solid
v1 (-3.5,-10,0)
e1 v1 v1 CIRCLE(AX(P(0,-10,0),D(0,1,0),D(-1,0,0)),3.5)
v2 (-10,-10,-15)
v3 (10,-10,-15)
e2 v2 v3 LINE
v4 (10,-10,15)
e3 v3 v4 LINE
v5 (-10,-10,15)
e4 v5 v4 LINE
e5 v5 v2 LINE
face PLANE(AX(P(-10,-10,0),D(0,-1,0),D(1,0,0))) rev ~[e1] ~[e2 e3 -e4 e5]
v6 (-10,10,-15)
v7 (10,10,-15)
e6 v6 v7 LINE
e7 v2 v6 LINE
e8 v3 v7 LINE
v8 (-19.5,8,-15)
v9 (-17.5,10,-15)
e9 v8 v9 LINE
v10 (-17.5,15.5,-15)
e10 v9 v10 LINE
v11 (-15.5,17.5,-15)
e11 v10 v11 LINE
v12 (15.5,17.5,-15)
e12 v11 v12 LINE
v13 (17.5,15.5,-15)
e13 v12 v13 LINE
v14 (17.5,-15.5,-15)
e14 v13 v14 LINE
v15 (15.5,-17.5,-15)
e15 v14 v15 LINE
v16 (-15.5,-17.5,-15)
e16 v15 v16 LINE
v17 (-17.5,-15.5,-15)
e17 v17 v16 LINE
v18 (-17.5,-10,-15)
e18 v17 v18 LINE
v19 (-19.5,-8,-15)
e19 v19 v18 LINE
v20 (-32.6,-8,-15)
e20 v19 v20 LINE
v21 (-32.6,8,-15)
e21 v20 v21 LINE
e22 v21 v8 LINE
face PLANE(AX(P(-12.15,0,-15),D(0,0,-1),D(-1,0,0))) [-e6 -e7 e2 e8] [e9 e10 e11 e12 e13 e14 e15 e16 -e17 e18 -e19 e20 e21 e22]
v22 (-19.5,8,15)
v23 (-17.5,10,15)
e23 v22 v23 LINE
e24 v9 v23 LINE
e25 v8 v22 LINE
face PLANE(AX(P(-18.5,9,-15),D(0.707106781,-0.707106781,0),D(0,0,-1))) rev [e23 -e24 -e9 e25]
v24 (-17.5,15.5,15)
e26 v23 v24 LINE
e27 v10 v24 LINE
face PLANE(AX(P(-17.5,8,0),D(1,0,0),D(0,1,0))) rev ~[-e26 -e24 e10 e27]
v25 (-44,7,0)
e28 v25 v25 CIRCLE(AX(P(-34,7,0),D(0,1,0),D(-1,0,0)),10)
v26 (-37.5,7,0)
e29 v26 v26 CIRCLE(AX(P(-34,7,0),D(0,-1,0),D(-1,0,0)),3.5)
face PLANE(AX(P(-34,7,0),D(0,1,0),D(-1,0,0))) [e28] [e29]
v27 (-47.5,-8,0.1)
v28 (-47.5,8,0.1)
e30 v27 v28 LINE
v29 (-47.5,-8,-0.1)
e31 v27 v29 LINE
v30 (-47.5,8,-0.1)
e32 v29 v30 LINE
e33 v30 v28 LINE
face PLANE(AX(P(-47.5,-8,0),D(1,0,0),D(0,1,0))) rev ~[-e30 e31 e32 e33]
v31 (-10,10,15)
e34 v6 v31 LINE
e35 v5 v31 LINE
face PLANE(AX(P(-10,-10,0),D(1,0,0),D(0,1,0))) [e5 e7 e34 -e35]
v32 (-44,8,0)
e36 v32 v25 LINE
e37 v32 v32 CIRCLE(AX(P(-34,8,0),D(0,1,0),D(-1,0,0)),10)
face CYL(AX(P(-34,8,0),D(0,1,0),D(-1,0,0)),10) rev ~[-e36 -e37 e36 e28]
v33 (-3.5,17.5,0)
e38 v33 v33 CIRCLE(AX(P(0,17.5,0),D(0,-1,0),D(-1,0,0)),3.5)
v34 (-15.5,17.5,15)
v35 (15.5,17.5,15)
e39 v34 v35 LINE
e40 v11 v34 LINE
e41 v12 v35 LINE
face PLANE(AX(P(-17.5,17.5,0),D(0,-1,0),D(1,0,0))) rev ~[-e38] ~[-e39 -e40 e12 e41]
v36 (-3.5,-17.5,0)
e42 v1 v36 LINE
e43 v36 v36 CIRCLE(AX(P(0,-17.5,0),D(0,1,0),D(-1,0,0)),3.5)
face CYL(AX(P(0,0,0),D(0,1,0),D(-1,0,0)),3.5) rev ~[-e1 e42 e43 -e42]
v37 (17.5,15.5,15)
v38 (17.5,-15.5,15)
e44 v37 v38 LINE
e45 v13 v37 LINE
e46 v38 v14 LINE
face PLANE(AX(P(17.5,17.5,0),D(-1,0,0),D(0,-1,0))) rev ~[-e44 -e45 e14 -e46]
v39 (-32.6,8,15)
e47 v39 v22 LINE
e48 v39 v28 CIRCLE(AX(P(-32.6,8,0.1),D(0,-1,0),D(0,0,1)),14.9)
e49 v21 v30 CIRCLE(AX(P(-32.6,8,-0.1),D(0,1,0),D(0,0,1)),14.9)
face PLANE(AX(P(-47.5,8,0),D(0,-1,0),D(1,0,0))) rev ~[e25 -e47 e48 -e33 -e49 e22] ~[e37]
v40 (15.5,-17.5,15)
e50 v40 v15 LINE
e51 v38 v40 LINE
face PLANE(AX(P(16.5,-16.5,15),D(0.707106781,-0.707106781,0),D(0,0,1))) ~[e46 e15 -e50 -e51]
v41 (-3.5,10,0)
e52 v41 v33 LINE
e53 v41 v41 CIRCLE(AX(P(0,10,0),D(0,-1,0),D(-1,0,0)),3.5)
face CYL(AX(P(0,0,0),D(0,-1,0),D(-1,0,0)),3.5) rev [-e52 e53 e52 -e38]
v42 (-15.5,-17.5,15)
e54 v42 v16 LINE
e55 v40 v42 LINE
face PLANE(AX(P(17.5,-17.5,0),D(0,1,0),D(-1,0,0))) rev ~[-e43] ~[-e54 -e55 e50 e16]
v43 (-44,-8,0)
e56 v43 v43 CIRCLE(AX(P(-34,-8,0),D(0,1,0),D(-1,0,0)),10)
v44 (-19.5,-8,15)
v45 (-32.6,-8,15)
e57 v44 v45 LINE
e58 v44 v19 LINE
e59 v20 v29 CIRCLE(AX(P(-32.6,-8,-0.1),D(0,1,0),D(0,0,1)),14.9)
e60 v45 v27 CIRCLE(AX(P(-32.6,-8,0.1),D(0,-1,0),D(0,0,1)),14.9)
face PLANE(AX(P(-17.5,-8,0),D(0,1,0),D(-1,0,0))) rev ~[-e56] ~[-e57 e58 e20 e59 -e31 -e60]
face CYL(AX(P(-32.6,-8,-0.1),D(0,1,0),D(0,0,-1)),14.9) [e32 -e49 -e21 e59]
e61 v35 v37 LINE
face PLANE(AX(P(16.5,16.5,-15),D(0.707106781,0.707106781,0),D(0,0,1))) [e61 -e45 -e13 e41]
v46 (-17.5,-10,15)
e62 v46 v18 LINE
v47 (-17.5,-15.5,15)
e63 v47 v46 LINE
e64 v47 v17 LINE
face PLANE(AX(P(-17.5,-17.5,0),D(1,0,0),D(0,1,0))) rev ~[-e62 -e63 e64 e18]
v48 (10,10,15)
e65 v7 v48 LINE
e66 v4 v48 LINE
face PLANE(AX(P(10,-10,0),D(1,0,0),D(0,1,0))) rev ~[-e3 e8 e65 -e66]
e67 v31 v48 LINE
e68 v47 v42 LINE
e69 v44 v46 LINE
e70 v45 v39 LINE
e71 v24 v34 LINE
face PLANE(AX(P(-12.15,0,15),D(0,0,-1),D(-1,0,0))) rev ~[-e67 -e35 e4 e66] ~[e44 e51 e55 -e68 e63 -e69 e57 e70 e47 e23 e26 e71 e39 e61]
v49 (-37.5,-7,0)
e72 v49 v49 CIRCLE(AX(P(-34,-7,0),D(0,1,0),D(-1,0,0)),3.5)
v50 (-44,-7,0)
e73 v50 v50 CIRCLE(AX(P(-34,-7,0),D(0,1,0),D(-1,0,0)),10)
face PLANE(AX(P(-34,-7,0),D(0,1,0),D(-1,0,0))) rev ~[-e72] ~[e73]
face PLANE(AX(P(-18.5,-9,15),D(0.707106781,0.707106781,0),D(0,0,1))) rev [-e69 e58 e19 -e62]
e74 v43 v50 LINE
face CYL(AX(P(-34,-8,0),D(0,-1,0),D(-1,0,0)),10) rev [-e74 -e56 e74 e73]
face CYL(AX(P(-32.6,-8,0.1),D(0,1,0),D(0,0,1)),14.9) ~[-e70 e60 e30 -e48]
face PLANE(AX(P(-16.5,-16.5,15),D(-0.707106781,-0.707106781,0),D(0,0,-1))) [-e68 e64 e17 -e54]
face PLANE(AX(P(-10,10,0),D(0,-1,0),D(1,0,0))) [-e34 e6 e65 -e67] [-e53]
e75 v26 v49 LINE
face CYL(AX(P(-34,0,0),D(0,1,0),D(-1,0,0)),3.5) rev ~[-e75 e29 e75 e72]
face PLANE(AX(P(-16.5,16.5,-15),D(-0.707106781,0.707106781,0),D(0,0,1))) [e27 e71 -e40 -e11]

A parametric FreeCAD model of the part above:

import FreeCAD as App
import Part
import Sketcher
Q = App.Units.Quantity


def edges_at(feature, points):
    """Names of the edges that pass closest to the given points."""
    edges = feature.Shape.Edges
    near = lambda p: min(range(len(edges)), key=lambda i: edges[i].distToShape(Part.Vertex(*p))[0])
    return sorted({f"Edge{near(p) + 1}" for p in points})

doc = App.newDocument("Part")
body = doc.addObject("PartDesign::Body", "Body")

sketch1 = body.newObject("Sketcher::SketchObject", "Sketch")
sketch1.AttachmentSupport = (doc.getObject("XY_Plane"), [""])
sketch1.MapMode = "FlatFace"
sketch1.addGeometry(Part.LineSegment(App.Vector(18, -18, 0), App.Vector(18, 18, 0)), False)
sketch1.addGeometry(Part.LineSegment(App.Vector(18, 18, 0), App.Vector(-18, 18, 0)), False)
sketch1.addGeometry(Part.LineSegment(App.Vector(-18, 18, 0), App.Vector(-18, 8, 0)), False)
sketch1.addGeometry(Part.LineSegment(App.Vector(-18, 8, 0), App.Vector(-48, 8, 0)), False)
sketch1.addGeometry(Part.LineSegment(App.Vector(-48, 8, 0), App.Vector(-48, -8, 0)), False)
sketch1.addGeometry(Part.LineSegment(App.Vector(-48, -8, 0), App.Vector(-18, -8, 0)), False)
sketch1.addGeometry(Part.LineSegment(App.Vector(-18, -8, 0), App.Vector(-18, -18, 0)), False)
sketch1.addGeometry(Part.LineSegment(App.Vector(-18, -18, 0), App.Vector(18, -18, 0)), False)
sketch1.addGeometry(Part.LineSegment(App.Vector(-10, -10, 0), App.Vector(-10, 10, 0)), False)
sketch1.addGeometry(Part.LineSegment(App.Vector(-10, 10, 0), App.Vector(10, 10, 0)), False)
sketch1.addGeometry(Part.LineSegment(App.Vector(10, 10, 0), App.Vector(10, -10, 0)), False)
sketch1.addGeometry(Part.LineSegment(App.Vector(10, -10, 0), App.Vector(-10, -10, 0)), False)
sketch1.addConstraint(Sketcher.Constraint("Coincident", 0, 2, 1, 1))
sketch1.addConstraint(Sketcher.Constraint("Coincident", 1, 2, 2, 1))
sketch1.addConstraint(Sketcher.Constraint("Coincident", 2, 2, 3, 1))
sketch1.addConstraint(Sketcher.Constraint("Coincident", 3, 2, 4, 1))
sketch1.addConstraint(Sketcher.Constraint("Coincident", 4, 2, 5, 1))
sketch1.addConstraint(Sketcher.Constraint("Coincident", 5, 2, 6, 1))
sketch1.addConstraint(Sketcher.Constraint("Coincident", 6, 2, 7, 1))
sketch1.addConstraint(Sketcher.Constraint("Coincident", 7, 2, 0, 1))
sketch1.addConstraint(Sketcher.Constraint("Coincident", 8, 2, 9, 1))
sketch1.addConstraint(Sketcher.Constraint("Coincident", 9, 2, 10, 1))
sketch1.addConstraint(Sketcher.Constraint("Coincident", 10, 2, 11, 1))
sketch1.addConstraint(Sketcher.Constraint("Coincident", 11, 2, 8, 1))
sketch1.addConstraint(Sketcher.Constraint("Vertical", 0))
sketch1.addConstraint(Sketcher.Constraint("Horizontal", 1))
sketch1.addConstraint(Sketcher.Constraint("Vertical", 2))
sketch1.addConstraint(Sketcher.Constraint("Horizontal", 3))
sketch1.addConstraint(Sketcher.Constraint("Vertical", 4))
sketch1.addConstraint(Sketcher.Constraint("Horizontal", 5))
sketch1.addConstraint(Sketcher.Constraint("Vertical", 6))
sketch1.addConstraint(Sketcher.Constraint("Horizontal", 7))
sketch1.addConstraint(Sketcher.Constraint("Vertical", 8))
sketch1.addConstraint(Sketcher.Constraint("Horizontal", 9))
sketch1.addConstraint(Sketcher.Constraint("Vertical", 10))
sketch1.addConstraint(Sketcher.Constraint("Horizontal", 11))
sketch1.addConstraint(Sketcher.Constraint("Symmetric", 0, 2, 6, 2, -1, 1))
sketch1.addConstraint(Sketcher.Constraint("Symmetric", 8, 2, 10, 2, -1, 1))
sketch1.addConstraint(Sketcher.Constraint("Symmetric", 2, 2, 5, 2, -1))
sketch1.addConstraint(Sketcher.Constraint("Equal", 7, 0))
sketch1.addConstraint(Sketcher.Constraint("Equal", 11, 8))
sketch1.addConstraint(Sketcher.Constraint("DistanceX", 1, 2, 1, 1, Q("35 mm")))
sketch1.addConstraint(Sketcher.Constraint("DistanceX", 3, 2, 3, 1, Q("30 mm")))
sketch1.addConstraint(Sketcher.Constraint("DistanceX", 9, 1, 9, 2, Q("20 mm")))
sketch1.addConstraint(Sketcher.Constraint("DistanceY", 4, 2, 4, 1, Q("16 mm")))
pad1 = body.newObject("PartDesign::Pad", "Pad")
pad1.Profile = sketch1
pad1.Length = 30
pad1.Midplane = True

sketch2 = body.newObject("Sketcher::SketchObject", "Sketch001")
sketch2.AttachmentSupport = (doc.getObject("XZ_Plane"), [""])
sketch2.MapMode = "FlatFace"
sketch2.addGeometry(Part.Circle(App.Vector(-34, 0, 0), App.Vector(0, 0, 1), 3.5), False)
sketch2.addGeometry(Part.Circle(App.Vector(0, 0, 0), App.Vector(0, 0, 1), 3.5), False)
sketch2.addConstraint(Sketcher.Constraint("Coincident", 1, 3, -1, 1))
sketch2.addConstraint(Sketcher.Constraint("Equal", 0, 1))
sketch2.addConstraint(Sketcher.Constraint("PointOnObject", 0, 3, -1))
sketch2.addConstraint(Sketcher.Constraint("Diameter", 0, Q("7 mm")))
sketch2.addConstraint(Sketcher.Constraint("DistanceX", 0, 3, -1, 1, Q("34 mm")))
pocket1 = body.newObject("PartDesign::Pocket", "Pocket")
pocket1.Profile = sketch2
pocket1.Type = "ThroughAll"
pocket1.Midplane = True

sketch3 = body.newObject("Sketcher::SketchObject", "Sketch002")
sketch3.AttachmentSupport = (doc.getObject("XZ_Plane"), [""])
sketch3.MapMode = "FlatFace"
sketch3.AttachmentOffset = App.Placement(App.Vector(0, 0, -8), App.Rotation())
sketch3.addGeometry(Part.Circle(App.Vector(-34, 0, 0), App.Vector(0, 0, 1), 10), False)
sketch3.addConstraint(Sketcher.Constraint("PointOnObject", 0, 3, -1))
sketch3.addConstraint(Sketcher.Constraint("Diameter", 0, Q("20 mm")))
sketch3.addConstraint(Sketcher.Constraint("DistanceX", 0, 3, -1, 1, Q("34 mm")))
pocket2 = body.newObject("PartDesign::Pocket", "Pocket001")
pocket2.Profile = sketch3
pocket2.Length = 1
pocket2.Reversed = True

sketch4 = body.newObject("Sketcher::SketchObject", "Sketch003")
sketch4.AttachmentSupport = (doc.getObject("XZ_Plane"), [""])
sketch4.MapMode = "FlatFace"
sketch4.AttachmentOffset = App.Placement(App.Vector(0, 0, 8), App.Rotation())
sketch4.addGeometry(Part.Circle(App.Vector(-34, 0, 0), App.Vector(0, 0, 1), 10), False)
sketch4.addConstraint(Sketcher.Constraint("PointOnObject", 0, 3, -1))
sketch4.addConstraint(Sketcher.Constraint("Diameter", 0, Q("20 mm")))
sketch4.addConstraint(Sketcher.Constraint("DistanceX", 0, 3, -1, 1, Q("34 mm")))
pocket3 = body.newObject("PartDesign::Pocket", "Pocket002")
pocket3.Profile = sketch4
pocket3.Length = 1
doc.recompute()

fillet = body.newObject("PartDesign::Fillet", "Fillet")
fillet.Base = (pocket3, edges_at(pocket3, [(-47.5, 0, 15), (-47.5, 0, -15)]))
fillet.Radius = 14.9
doc.recompute()

chamfer = body.newObject("PartDesign::Chamfer", "Chamfer")
chamfer.Base = (fillet, edges_at(fillet, [
    (17.5, -17.5, 0),
    (-17.5, -17.5, 0),
    (-17.5, -8, 0),
    (-17.5, 8, 0),
    (17.5, 17.5, 0),
    (-17.5, 17.5, 0),
]))
chamfer.Size = 2

doc.recompute()
